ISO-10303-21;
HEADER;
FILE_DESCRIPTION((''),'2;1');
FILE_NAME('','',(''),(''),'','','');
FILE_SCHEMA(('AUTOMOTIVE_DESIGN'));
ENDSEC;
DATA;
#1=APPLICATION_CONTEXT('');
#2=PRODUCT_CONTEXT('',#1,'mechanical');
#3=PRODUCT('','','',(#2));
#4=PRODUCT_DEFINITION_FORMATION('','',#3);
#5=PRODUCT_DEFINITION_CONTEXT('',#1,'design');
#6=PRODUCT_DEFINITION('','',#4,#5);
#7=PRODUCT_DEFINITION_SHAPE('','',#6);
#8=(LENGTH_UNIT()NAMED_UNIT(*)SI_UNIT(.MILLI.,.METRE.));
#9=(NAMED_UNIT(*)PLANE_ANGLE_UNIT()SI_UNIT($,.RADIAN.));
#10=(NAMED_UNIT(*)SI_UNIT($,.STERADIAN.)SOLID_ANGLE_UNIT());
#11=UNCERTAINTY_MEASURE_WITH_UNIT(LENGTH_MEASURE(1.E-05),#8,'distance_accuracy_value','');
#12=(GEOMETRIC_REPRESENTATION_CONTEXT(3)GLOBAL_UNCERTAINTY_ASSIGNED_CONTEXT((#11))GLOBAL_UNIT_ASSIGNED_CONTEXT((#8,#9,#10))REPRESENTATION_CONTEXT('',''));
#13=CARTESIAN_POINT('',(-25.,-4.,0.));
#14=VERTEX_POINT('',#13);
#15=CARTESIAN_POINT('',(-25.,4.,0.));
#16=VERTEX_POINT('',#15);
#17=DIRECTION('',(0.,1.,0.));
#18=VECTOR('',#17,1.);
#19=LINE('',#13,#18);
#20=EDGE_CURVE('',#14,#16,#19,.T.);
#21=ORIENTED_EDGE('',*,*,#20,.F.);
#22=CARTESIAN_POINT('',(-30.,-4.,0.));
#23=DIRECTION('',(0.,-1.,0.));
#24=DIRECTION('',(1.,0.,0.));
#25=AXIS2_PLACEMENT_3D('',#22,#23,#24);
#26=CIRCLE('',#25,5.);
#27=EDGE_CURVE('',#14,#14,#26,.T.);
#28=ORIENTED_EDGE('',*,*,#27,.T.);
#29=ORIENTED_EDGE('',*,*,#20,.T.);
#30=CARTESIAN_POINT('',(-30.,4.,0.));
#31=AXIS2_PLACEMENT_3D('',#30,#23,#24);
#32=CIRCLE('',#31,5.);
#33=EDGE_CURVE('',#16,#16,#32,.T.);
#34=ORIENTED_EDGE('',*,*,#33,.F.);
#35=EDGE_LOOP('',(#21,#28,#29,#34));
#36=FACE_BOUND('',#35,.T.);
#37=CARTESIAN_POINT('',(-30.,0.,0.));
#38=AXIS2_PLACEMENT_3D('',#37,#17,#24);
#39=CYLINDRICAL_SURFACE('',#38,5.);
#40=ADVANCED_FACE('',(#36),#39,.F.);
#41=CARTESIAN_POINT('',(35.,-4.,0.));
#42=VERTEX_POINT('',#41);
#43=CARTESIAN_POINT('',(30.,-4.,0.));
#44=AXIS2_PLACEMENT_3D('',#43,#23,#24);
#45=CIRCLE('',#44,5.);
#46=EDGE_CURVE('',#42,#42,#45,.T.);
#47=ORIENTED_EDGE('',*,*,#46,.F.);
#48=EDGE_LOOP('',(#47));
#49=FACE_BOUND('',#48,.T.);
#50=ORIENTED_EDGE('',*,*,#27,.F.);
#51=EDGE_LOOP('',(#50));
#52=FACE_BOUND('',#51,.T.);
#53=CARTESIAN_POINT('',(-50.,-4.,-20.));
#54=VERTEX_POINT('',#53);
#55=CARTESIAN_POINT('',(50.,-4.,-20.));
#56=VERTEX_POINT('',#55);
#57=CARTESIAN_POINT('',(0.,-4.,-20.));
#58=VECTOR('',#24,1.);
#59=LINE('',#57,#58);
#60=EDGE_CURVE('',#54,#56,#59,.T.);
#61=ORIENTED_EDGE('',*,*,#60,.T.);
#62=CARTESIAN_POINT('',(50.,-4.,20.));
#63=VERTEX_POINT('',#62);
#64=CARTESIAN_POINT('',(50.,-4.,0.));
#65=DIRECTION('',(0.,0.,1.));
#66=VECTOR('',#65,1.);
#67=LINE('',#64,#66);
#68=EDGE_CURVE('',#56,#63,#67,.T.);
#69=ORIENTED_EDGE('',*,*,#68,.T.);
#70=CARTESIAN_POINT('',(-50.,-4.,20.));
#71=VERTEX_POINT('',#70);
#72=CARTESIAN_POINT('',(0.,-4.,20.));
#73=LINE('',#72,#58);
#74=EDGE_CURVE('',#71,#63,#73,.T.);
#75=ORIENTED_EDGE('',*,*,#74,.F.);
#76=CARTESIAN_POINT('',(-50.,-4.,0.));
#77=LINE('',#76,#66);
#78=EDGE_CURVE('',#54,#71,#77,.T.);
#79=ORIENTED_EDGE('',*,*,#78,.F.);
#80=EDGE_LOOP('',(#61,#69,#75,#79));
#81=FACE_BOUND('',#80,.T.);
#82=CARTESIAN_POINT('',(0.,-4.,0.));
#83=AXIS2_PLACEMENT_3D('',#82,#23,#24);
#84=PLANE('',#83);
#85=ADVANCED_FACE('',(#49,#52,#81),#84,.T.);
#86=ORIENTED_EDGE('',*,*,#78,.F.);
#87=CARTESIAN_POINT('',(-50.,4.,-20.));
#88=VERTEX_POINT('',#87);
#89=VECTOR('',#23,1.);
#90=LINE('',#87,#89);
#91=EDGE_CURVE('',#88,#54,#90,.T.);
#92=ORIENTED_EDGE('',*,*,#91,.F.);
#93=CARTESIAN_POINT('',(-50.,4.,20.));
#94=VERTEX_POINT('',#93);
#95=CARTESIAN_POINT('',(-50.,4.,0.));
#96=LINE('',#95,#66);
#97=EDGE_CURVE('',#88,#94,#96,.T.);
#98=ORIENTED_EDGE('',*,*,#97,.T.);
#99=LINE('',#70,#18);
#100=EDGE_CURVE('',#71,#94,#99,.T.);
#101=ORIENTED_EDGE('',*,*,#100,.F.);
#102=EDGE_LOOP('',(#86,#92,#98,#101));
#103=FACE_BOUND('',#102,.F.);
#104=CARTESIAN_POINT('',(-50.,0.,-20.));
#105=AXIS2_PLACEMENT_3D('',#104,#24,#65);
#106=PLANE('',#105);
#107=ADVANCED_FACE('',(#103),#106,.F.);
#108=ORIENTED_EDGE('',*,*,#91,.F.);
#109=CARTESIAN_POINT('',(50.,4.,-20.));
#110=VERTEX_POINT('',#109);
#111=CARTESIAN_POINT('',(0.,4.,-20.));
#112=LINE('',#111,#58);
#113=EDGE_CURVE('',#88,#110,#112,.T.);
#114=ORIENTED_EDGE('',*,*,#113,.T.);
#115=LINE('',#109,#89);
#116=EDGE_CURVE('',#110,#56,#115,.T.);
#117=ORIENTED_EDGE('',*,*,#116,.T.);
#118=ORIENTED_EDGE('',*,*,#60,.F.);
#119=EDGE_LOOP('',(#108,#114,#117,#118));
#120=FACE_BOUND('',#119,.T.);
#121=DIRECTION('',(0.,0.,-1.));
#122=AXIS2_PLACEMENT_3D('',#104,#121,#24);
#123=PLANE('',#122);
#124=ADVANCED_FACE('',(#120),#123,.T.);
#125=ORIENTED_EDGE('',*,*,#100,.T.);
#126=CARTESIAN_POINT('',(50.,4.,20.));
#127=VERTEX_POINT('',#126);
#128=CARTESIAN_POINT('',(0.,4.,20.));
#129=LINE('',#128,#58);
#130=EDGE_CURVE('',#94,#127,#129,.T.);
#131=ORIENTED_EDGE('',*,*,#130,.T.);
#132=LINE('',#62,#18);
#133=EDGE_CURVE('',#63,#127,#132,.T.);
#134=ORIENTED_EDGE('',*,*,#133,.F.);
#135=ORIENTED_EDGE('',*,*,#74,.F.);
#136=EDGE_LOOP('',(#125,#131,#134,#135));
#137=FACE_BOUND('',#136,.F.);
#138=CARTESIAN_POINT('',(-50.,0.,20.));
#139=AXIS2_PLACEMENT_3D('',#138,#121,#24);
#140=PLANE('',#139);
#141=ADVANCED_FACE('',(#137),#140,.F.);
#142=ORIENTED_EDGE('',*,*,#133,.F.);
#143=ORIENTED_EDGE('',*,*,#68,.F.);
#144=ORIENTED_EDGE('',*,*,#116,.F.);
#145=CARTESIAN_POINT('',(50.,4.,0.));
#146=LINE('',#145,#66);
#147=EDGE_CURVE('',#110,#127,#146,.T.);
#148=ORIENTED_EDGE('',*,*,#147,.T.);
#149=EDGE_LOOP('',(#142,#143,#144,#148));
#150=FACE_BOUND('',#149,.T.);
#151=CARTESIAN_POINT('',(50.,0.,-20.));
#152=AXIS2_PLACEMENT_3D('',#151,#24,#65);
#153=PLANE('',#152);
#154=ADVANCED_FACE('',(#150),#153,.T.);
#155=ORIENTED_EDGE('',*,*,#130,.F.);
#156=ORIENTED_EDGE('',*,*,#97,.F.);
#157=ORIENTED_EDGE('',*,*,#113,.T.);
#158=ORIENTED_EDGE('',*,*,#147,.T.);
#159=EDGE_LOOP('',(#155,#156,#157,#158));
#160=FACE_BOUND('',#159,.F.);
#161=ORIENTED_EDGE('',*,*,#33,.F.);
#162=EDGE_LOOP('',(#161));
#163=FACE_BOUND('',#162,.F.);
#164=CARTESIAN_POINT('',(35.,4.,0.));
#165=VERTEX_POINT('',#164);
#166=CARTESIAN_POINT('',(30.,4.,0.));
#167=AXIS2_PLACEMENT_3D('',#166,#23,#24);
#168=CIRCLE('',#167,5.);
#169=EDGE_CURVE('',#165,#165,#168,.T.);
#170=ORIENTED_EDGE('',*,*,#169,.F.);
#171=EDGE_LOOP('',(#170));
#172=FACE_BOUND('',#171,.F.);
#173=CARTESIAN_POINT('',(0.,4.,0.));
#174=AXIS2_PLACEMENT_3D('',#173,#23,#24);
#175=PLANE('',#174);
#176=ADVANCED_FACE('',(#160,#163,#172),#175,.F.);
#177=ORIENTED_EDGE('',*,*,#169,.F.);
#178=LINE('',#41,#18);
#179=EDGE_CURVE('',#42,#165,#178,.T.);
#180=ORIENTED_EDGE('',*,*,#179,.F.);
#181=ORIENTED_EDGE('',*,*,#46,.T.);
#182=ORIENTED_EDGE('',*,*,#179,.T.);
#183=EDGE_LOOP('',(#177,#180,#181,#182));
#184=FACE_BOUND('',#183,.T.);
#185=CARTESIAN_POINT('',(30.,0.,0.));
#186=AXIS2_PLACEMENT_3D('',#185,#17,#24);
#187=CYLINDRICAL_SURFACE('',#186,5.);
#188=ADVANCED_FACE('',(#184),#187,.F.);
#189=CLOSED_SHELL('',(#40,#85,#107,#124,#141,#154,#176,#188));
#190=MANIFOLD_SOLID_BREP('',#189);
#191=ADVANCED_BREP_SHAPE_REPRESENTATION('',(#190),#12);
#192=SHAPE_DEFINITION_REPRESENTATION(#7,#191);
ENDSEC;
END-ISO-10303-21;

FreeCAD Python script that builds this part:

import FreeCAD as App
import Part
import Sketcher
Q = App.Units.Quantity

doc = App.newDocument("Part")
body = doc.addObject("PartDesign::Body", "Body")

sketch1 = body.newObject("Sketcher::SketchObject", "Sketch")
sketch1.AttachmentSupport = (doc.getObject("XZ_Plane"), [""])
sketch1.MapMode = "FlatFace"
sketch1.addGeometry([
    Part.LineSegment(App.Vector(-50, 20, 0), App.Vector(-50, -20, 0)),
    Part.LineSegment(App.Vector(-50, -20, 0), App.Vector(50, -20, 0)),
    Part.LineSegment(App.Vector(50, -20, 0), App.Vector(50, 20, 0)),
    Part.LineSegment(App.Vector(50, 20, 0), App.Vector(-50, 20, 0)),
    Part.Circle(App.Vector(-30, 0, 0), App.Vector(0, 0, 1), 5),
    Part.Circle(App.Vector(30, 0, 0), App.Vector(0, 0, 1), 5),
], False)
sketch1.addConstraint([
    Sketcher.Constraint("Coincident", 0, 2, 1, 1),
    Sketcher.Constraint("Coincident", 1, 2, 2, 1),
    Sketcher.Constraint("Coincident", 2, 2, 3, 1),
    Sketcher.Constraint("Coincident", 3, 2, 0, 1),
    Sketcher.Constraint("Vertical", 0),
    Sketcher.Constraint("Horizontal", 1),
    Sketcher.Constraint("Vertical", 2),
    Sketcher.Constraint("Horizontal", 3),
    Sketcher.Constraint("Equal", 4, 5),
    Sketcher.Constraint("Symmetric", 4, 3, 5, 3, -1, 1),
    Sketcher.Constraint("Symmetric", 0, 2, 2, 2, -1, 1),
    Sketcher.Constraint("PointOnObject", 4, 3, -1),
    Sketcher.Constraint("Diameter", 4, Q("10 mm")),
    Sketcher.Constraint("DistanceX", 1, 1, 1, 2, Q("100 mm")),
    Sketcher.Constraint("DistanceY", 0, 2, 0, 1, Q("40 mm")),
    Sketcher.Constraint("DistanceX", 4, 3, -1, 1, Q("30 mm")),
])
pad1 = body.newObject("PartDesign::Pad", "Pad")
pad1.Profile = sketch1
pad1.Length = 8
pad1.Midplane = True

doc.recompute()
